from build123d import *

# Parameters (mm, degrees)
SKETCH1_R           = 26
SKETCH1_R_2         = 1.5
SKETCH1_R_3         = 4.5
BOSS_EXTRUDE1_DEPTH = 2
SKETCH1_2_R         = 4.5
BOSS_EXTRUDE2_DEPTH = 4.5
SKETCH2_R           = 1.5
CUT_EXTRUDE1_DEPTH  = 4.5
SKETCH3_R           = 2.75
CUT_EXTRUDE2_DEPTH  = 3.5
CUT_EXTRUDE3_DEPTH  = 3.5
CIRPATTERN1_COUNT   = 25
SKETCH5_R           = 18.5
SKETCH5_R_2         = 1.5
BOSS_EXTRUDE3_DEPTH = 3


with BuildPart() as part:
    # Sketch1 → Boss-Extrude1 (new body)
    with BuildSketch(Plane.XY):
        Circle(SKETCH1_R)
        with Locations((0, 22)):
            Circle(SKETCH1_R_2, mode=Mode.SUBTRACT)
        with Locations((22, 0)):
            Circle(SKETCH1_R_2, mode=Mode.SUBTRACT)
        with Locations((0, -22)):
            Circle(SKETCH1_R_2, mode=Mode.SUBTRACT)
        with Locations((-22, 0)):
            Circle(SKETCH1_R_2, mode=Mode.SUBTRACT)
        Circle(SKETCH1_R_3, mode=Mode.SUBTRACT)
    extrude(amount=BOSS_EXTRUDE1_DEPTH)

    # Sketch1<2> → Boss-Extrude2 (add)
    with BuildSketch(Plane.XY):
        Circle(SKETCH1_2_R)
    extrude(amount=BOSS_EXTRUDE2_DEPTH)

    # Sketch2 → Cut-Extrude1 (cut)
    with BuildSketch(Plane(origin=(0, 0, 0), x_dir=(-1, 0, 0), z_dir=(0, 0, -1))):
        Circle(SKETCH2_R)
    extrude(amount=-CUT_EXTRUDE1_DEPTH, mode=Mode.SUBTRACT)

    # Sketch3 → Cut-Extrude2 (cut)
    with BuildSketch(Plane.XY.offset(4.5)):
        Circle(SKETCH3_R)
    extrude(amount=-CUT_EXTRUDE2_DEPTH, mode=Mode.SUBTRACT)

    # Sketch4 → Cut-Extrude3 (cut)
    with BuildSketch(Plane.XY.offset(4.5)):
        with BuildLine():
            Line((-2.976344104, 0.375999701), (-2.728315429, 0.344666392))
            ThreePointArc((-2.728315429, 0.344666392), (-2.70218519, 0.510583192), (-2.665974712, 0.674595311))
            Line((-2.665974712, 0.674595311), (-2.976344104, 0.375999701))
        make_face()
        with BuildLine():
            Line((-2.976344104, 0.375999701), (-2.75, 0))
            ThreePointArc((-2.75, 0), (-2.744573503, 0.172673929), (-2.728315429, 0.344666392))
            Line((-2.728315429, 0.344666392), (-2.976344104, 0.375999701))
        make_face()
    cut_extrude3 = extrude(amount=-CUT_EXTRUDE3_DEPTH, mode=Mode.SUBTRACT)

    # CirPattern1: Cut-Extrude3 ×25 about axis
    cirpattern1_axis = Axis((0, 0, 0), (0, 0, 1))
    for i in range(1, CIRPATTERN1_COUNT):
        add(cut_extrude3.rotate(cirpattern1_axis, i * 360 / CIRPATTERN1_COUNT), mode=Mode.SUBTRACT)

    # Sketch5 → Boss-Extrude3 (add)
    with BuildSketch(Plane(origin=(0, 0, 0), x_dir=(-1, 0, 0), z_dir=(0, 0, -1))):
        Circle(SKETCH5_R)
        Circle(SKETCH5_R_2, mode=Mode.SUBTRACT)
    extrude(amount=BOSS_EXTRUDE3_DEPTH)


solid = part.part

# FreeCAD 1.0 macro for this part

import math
import FreeCAD as App
import Part
import Sketcher

V = App.Vector

doc = App.newDocument("Part")
params = doc.addObject("Spreadsheet::Sheet", "Params")
for row, (alias, value) in enumerate([
    ("sketch1_diameter", "52 mm"),
    ("sketch1_diameter2", "3 mm"),
    ("sketch1_diameter3", "9 mm"),
    ("pad1_length", "2 mm"),
    ("sketch2_diameter", "9 mm"),
    ("pad2_length", "4.5 mm"),
    ("sketch3_diameter", "3 mm"),
    ("pocket1_length", "4.5 mm"),
    ("sketch4_diameter", "5.5 mm"),
    ("pocket2_length", "3.5 mm"),
    ("sketch5_radius", "2.75 mm"),
    ("pocket3_length", "3.5 mm"),
    ("sketch6_diameter", "37 mm"),
    ("sketch6_diameter2", "3 mm"),
    ("pad3_length", "3 mm"),
], start=1):
    params.set(f"A{row}", alias)
    params.set(f"B{row}", "=" + value)
    params.setAlias(f"B{row}", alias)

body = doc.addObject("PartDesign::Body", "Body")

# Sketch on XY plane
sketch1 = body.newObject("Sketcher::SketchObject", "Sketch")
sketch1.AttachmentSupport = (doc.getObject("XY_Plane"), [""])
sketch1.MapMode = "FlatFace"
sketch1.addGeometry(Part.Circle(V(0, 0, 0), V(0, 0, 1), 26), False)
sketch1.addGeometry(Part.Circle(V(0, -22, 0), V(0, 0, 1), 1.5), False)
sketch1.addGeometry(Part.Circle(V(-22, 0, 0), V(0, 0, 1), 1.5), False)
sketch1.addGeometry(Part.Circle(V(0, 0, 0), V(0, 0, 1), 4.5), False)
sketch1.addGeometry(Part.Circle(V(22, 0, 0), V(0, 0, 1), 1.5), False)
sketch1.addGeometry(Part.Circle(V(0, 22, 0), V(0, 0, 1), 1.5), False)
sketch1.addConstraint(Sketcher.Constraint("Coincident", 0, 3, -1, 1))
sketch1.addConstraint(Sketcher.Constraint("Coincident", 3, 3, -1, 1))
sketch1.addConstraint(Sketcher.Constraint("Equal", 1, 2))
sketch1.addConstraint(Sketcher.Constraint("Equal", 2, 4))
sketch1.addConstraint(Sketcher.Constraint("Equal", 4, 5))
sketch1.addConstraint(Sketcher.Constraint("Symmetric", 2, 3, 4, 3, -1, 1))
sketch1.addConstraint(Sketcher.Constraint("Symmetric", 1, 3, 5, 3, -1, 1))
sketch1.addConstraint(Sketcher.Constraint("PointOnObject", 1, 3, -2))
sketch1.addConstraint(Sketcher.Constraint("PointOnObject", 2, 3, -1))
sketch1.addConstraint(Sketcher.Constraint("Diameter", 0, 52.0))
sketch1.addConstraint(Sketcher.Constraint("Diameter", 1, 3.0))
sketch1.addConstraint(Sketcher.Constraint("Diameter", 3, 9.0))
sketch1.addConstraint(Sketcher.Constraint("DistanceY", 1, 3, -1, 1, 22.0))
sketch1.addConstraint(Sketcher.Constraint("DistanceX", 2, 3, -1, 1, 22.0))
sketch1.setExpression("Constraints[9]", "Params.sketch1_diameter")
sketch1.setExpression("Constraints[10]", "Params.sketch1_diameter2")
sketch1.setExpression("Constraints[11]", "Params.sketch1_diameter3")
pad1 = body.newObject("PartDesign::Pad", "Pad")
pad1.Profile = sketch1
pad1.setExpression("Length", "Params.pad1_length")

# Sketch on XY plane
sketch2 = body.newObject("Sketcher::SketchObject", "Sketch001")
sketch2.AttachmentSupport = (doc.getObject("XY_Plane"), [""])
sketch2.MapMode = "FlatFace"
sketch2.addGeometry(Part.Circle(V(0, 0, 0), V(0, 0, 1), 4.5), False)
sketch2.addConstraint(Sketcher.Constraint("Coincident", 0, 3, -1, 1))
sketch2.addConstraint(Sketcher.Constraint("Diameter", 0, 9.0))
sketch2.setExpression("Constraints[1]", "Params.sketch2_diameter")
pad2 = body.newObject("PartDesign::Pad", "Pad001")
pad2.Profile = sketch2
pad2.setExpression("Length", "Params.pad2_length")

# Sketch on XY plane
sketch3 = body.newObject("Sketcher::SketchObject", "Sketch002")
sketch3.AttachmentSupport = (doc.getObject("XY_Plane"), [""])
sketch3.MapMode = "FlatFace"
sketch3.addGeometry(Part.Circle(V(0, 0, 0), V(0, 0, 1), 1.5), False)
sketch3.addConstraint(Sketcher.Constraint("Coincident", 0, 3, -1, 1))
sketch3.addConstraint(Sketcher.Constraint("Diameter", 0, 3.0))
sketch3.setExpression("Constraints[1]", "Params.sketch3_diameter")
pocket1 = body.newObject("PartDesign::Pocket", "Pocket")
pocket1.Profile = sketch3
pocket1.setExpression("Length", "Params.pocket1_length")
pocket1.Reversed = True

# Sketch on XY plane
sketch4 = body.newObject("Sketcher::SketchObject", "Sketch003")
sketch4.AttachmentSupport = (doc.getObject("XY_Plane"), [""])
sketch4.MapMode = "FlatFace"
sketch4.AttachmentOffset = App.Placement(V(0, 0, 4.5), App.Rotation())
sketch4.addGeometry(Part.Circle(V(0, 0, 0), V(0, 0, 1), 2.8), False)
sketch4.addConstraint(Sketcher.Constraint("Coincident", 0, 3, -1, 1))
sketch4.addConstraint(Sketcher.Constraint("Diameter", 0, 5.5))
sketch4.setExpression("Constraints[1]", "Params.sketch4_diameter")
pocket2 = body.newObject("PartDesign::Pocket", "Pocket001")
pocket2.Profile = sketch4
pocket2.setExpression("Length", "Params.pocket2_length")

# Sketch on XY plane
sketch5 = body.newObject("Sketcher::SketchObject", "Sketch004")
sketch5.AttachmentSupport = (doc.getObject("XY_Plane"), [""])
sketch5.MapMode = "FlatFace"
sketch5.AttachmentOffset = App.Placement(V(0, 0, 4.5), App.Rotation())
sketch5.addGeometry(Part.ArcOfCircle(Part.Circle(V(0, 0, 0), V(0, 0, 1), 2.75), math.radians(165.8), math.radians(172.8)), False)
sketch5.addGeometry(Part.LineSegment(V(-2.67, 0.67, 0), V(-2.98, 0.38, 0)), False)
sketch5.addGeometry(Part.LineSegment(V(-2.98, 0.38, 0), V(-2.75, 0, 0)), False)
sketch5.addGeometry(Part.ArcOfCircle(Part.Circle(V(0, 0, 0), V(0, 0, 1), 2.75), math.radians(172.8), math.radians(180)), False)
sketch5.addConstraint(Sketcher.Constraint("Coincident", 0, 1, 1, 1))
sketch5.addConstraint(Sketcher.Constraint("Coincident", 1, 2, 2, 1))
sketch5.addConstraint(Sketcher.Constraint("Coincident", 2, 2, 3, 2))
sketch5.addConstraint(Sketcher.Constraint("Tangent", 3, 1, 0, 2))
sketch5.addConstraint(Sketcher.Constraint("Coincident", 0, 3, -1, 1))
sketch5.addConstraint(Sketcher.Constraint("Equal", 0, 3))
sketch5.addConstraint(Sketcher.Constraint("PointOnObject", 2, 2, -1))
sketch5.addConstraint(Sketcher.Constraint("Radius", 0, 2.75))
sketch5.addConstraint(Sketcher.Constraint("DistanceY", -1, 1, 1, 2, 0.376))
sketch5.addConstraint(Sketcher.Constraint("Distance", 2, 0.438871))
sketch5.addConstraint(Sketcher.Constraint("DistanceX", 1, 2, 0, 1, 0.310369))
sketch5.addConstraint(Sketcher.Constraint("DistanceX", 1, 2, 3, 1, 0.248029))
sketch5.setExpression("Constraints[7]", "Params.sketch5_radius")
pocket3 = body.newObject("PartDesign::Pocket", "Pocket002")
pocket3.Profile = sketch5
pocket3.setExpression("Length", "Params.pocket3_length")
doc.recompute()

polarpattern = body.newObject("PartDesign::PolarPattern", "PolarPattern")
polarpattern.Originals = [pocket3]
polarpattern.Axis = (doc.getObject("Z_Axis"), [""])
polarpattern.Angle = 360
polarpattern.Occurrences = 25
body.Tip = polarpattern

# Sketch on XY plane
sketch6 = body.newObject("Sketcher::SketchObject", "Sketch005")
sketch6.AttachmentSupport = (doc.getObject("XY_Plane"), [""])
sketch6.MapMode = "FlatFace"
sketch6.addGeometry(Part.Circle(V(0, 0, 0), V(0, 0, 1), 18.5), False)
sketch6.addGeometry(Part.Circle(V(0, 0, 0), V(0, 0, 1), 1.5), False)
sketch6.addConstraint(Sketcher.Constraint("Coincident", 0, 3, -1, 1))
sketch6.addConstraint(Sketcher.Constraint("Coincident", 1, 3, -1, 1))
sketch6.addConstraint(Sketcher.Constraint("Diameter", 0, 37.0))
sketch6.addConstraint(Sketcher.Constraint("Diameter", 1, 3.0))
sketch6.setExpression("Constraints[2]", "Params.sketch6_diameter")
sketch6.setExpression("Constraints[3]", "Params.sketch6_diameter2")
pad3 = body.newObject("PartDesign::Pad", "Pad002")
pad3.Profile = sketch6
pad3.setExpression("Length", "Params.pad3_length")
pad3.Reversed = True

doc.recompute()
